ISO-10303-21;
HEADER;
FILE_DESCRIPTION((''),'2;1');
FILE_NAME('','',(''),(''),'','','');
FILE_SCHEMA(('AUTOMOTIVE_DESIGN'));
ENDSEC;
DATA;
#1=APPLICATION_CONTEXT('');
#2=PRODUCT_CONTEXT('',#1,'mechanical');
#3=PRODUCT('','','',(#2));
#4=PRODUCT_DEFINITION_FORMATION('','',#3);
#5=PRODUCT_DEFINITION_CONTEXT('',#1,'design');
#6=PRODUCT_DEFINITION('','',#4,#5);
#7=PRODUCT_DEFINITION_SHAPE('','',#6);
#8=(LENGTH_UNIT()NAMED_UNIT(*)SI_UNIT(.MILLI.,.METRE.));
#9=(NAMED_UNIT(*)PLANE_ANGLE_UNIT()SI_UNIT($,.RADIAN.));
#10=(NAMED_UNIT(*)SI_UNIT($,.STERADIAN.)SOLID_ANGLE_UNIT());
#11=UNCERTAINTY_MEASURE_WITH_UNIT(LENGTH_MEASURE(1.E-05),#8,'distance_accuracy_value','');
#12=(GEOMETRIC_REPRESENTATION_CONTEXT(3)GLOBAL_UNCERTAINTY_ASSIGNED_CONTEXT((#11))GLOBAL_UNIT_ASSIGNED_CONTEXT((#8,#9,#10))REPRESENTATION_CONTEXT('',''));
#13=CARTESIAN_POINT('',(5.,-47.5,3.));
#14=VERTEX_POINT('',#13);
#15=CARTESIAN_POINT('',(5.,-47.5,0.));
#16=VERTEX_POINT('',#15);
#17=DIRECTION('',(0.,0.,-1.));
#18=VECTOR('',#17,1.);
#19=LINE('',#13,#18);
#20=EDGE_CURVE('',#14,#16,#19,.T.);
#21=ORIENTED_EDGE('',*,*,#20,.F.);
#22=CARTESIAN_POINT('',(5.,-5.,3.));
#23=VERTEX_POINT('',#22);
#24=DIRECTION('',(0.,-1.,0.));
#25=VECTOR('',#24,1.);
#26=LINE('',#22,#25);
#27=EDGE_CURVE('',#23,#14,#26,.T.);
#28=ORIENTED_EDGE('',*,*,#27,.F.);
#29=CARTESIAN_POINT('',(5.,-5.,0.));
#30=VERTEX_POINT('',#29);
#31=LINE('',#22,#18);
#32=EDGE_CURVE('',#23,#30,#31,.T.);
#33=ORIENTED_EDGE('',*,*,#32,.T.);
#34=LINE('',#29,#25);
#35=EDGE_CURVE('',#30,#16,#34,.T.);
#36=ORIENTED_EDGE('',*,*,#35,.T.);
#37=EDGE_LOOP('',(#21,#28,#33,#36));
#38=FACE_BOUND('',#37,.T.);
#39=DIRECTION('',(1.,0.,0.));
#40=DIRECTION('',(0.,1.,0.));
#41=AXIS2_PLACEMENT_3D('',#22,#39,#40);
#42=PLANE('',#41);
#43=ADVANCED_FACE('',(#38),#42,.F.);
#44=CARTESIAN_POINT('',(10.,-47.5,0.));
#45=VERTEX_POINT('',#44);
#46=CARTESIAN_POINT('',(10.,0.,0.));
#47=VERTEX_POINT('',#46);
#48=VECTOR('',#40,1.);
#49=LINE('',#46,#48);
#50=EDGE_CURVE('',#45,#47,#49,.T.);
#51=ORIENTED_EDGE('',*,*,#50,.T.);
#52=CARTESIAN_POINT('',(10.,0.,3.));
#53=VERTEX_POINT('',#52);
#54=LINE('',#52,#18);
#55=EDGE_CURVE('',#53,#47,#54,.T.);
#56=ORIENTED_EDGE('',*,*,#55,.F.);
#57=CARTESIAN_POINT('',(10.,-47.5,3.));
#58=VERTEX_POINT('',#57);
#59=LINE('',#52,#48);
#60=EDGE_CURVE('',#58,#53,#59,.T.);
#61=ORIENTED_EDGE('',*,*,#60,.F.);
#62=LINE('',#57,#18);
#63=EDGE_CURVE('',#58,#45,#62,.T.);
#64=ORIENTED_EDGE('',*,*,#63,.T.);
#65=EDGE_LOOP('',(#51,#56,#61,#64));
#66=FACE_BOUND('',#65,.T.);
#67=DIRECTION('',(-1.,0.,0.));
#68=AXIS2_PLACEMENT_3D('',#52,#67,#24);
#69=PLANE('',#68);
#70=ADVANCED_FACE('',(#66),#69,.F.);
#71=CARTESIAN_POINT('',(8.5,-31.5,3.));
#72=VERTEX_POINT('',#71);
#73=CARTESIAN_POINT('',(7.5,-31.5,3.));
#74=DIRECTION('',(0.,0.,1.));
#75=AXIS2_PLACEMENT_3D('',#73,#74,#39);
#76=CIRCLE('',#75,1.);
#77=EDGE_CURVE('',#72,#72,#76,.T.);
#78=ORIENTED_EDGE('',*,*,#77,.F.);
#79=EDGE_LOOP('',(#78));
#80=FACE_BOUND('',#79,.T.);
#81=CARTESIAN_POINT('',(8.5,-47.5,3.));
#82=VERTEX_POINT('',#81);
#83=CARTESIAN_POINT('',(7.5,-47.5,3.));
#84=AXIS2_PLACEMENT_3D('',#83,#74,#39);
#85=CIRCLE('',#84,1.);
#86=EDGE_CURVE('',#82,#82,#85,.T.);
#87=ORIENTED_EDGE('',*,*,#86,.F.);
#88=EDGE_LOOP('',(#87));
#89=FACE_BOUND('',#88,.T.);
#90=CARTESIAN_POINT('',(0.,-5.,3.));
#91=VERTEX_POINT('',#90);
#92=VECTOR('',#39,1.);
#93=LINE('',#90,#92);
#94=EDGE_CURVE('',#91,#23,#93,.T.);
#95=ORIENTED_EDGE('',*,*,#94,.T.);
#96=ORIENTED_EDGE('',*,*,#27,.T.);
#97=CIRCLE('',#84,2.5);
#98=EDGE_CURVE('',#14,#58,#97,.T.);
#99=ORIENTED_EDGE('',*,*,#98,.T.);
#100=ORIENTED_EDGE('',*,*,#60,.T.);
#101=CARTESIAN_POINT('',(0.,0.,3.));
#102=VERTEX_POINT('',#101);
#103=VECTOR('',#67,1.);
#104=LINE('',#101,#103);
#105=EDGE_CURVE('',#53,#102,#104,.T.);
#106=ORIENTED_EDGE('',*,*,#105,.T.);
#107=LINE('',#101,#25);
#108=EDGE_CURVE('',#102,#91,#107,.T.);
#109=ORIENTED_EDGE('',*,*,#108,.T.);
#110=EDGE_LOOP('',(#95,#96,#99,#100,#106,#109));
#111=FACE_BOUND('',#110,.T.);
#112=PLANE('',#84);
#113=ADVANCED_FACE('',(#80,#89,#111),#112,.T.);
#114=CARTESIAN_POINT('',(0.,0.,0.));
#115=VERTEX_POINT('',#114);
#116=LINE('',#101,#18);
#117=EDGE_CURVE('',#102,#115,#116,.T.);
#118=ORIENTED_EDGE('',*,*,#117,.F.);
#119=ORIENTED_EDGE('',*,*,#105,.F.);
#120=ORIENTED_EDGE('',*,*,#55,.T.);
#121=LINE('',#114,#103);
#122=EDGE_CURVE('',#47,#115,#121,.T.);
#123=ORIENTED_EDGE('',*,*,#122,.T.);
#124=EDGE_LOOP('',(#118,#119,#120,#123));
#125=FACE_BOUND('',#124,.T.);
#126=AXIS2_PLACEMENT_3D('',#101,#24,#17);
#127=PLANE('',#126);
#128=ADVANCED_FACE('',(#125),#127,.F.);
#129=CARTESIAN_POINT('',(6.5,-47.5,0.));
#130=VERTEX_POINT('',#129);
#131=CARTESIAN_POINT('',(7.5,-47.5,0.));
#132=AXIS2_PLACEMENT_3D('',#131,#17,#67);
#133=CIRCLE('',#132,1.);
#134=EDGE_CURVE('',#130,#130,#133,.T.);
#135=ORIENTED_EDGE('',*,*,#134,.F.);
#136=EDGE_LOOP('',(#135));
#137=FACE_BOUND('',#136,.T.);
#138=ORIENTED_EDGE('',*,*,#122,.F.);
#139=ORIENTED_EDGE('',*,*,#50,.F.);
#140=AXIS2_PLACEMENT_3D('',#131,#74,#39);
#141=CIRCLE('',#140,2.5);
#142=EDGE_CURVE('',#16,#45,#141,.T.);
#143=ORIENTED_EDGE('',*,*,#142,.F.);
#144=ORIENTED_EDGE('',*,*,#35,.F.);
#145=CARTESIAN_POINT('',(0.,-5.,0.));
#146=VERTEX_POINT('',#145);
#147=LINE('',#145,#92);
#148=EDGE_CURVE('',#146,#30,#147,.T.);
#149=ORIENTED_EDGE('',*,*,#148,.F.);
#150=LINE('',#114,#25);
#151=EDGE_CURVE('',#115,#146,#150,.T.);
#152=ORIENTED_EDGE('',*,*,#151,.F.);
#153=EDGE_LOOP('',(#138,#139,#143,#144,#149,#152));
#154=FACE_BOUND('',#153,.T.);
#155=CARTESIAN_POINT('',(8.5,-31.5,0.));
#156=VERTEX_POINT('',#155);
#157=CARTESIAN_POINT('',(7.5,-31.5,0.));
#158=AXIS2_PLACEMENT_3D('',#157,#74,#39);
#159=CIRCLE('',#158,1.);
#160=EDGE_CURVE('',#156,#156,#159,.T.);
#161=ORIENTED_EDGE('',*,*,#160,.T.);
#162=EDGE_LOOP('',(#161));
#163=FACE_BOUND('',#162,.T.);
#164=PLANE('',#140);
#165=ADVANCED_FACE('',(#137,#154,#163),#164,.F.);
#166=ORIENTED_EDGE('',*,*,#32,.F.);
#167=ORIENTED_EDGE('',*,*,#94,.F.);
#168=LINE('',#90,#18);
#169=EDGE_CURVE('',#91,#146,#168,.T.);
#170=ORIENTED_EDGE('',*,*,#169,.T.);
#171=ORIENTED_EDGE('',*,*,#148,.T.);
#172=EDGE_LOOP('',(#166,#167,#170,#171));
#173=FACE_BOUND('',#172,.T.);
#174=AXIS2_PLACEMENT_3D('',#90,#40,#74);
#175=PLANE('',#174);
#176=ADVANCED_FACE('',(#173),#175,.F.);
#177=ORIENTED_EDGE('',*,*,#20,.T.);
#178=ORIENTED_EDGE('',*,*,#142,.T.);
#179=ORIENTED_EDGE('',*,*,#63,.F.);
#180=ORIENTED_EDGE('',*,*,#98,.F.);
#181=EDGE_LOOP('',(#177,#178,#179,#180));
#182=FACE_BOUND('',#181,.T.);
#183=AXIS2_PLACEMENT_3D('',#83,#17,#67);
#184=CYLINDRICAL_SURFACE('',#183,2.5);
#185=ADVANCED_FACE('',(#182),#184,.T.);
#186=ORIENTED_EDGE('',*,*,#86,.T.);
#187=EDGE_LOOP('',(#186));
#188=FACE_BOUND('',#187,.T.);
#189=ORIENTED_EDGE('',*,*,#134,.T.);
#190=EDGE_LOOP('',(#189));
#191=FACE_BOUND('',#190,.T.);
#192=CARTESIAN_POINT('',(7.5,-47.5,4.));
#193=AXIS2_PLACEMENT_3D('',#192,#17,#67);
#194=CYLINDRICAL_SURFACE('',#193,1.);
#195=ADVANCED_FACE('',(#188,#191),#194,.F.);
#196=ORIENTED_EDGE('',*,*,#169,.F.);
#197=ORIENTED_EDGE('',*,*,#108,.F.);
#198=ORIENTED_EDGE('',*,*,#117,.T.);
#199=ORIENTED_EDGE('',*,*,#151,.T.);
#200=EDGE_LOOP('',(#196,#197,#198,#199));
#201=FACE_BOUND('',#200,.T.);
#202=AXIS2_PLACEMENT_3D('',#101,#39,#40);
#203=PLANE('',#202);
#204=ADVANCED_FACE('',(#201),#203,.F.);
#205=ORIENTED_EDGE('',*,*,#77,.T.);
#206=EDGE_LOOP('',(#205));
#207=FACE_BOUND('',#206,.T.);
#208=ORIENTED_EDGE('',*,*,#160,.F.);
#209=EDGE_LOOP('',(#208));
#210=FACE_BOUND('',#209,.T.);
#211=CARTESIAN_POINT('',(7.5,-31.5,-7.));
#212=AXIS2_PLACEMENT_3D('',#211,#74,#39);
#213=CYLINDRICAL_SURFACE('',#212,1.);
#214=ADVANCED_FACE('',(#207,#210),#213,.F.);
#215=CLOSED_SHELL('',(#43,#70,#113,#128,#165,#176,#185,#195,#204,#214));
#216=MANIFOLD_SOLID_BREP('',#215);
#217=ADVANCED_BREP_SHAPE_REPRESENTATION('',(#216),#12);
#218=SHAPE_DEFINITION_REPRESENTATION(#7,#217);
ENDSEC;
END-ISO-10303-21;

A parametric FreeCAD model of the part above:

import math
import FreeCAD as App
import Part
import Sketcher
Q = App.Units.Quantity

doc = App.newDocument("Part")
body = doc.addObject("PartDesign::Body", "Body")

# Sketch on XY plane
sketch1 = body.newObject("Sketcher::SketchObject", "Sketch")
sketch1.AttachmentSupport = (doc.getObject("XY_Plane"), [""])
sketch1.MapMode = "FlatFace"
sketch1.addGeometry(Part.LineSegment(App.Vector(10, 0, 0), App.Vector(0, 0, 0)), False)
sketch1.addGeometry(Part.LineSegment(App.Vector(0, 0, 0), App.Vector(0, -5, 0)), False)
sketch1.addGeometry(Part.LineSegment(App.Vector(0, -5, 0), App.Vector(5, -5, 0)), False)
sketch1.addGeometry(Part.LineSegment(App.Vector(5, -5, 0), App.Vector(5, -47.5, 0)), False)
sketch1.addGeometry(Part.ArcOfCircle(Part.Circle(App.Vector(7.5, -47.5, 0), App.Vector(0, 0, 1), 2.5), math.radians(180), math.radians(360)), False)
sketch1.addGeometry(Part.LineSegment(App.Vector(10, -47.5, 0), App.Vector(10, 0, 0)), False)
sketch1.addConstraint(Sketcher.Constraint("Coincident", 0, 2, 1, 1))
sketch1.addConstraint(Sketcher.Constraint("Coincident", 1, 2, 2, 1))
sketch1.addConstraint(Sketcher.Constraint("Coincident", 2, 2, 3, 1))
sketch1.addConstraint(Sketcher.Constraint("Tangent", 3, 2, 4, 1))
sketch1.addConstraint(Sketcher.Constraint("Tangent", 4, 2, 5, 1))
sketch1.addConstraint(Sketcher.Constraint("Coincident", 5, 2, 0, 1))
sketch1.addConstraint(Sketcher.Constraint("Horizontal", 0))
sketch1.addConstraint(Sketcher.Constraint("Vertical", 1))
sketch1.addConstraint(Sketcher.Constraint("Horizontal", 2))
sketch1.addConstraint(Sketcher.Constraint("Vertical", 3))
sketch1.addConstraint(Sketcher.Constraint("Vertical", 5))
sketch1.addConstraint(Sketcher.Constraint("Coincident", 0, 2, -1, 1))
sketch1.addConstraint(Sketcher.Constraint("Equal", 2, 1))
sketch1.addConstraint(Sketcher.Constraint("Radius", 4, Q("2.5 mm")))
sketch1.addConstraint(Sketcher.Constraint("DistanceX", 0, 2, 0, 1, Q("10 mm")))
sketch1.addConstraint(Sketcher.Constraint("DistanceY", 3, 2, 3, 1, Q("42.5 mm")))
pad1 = body.newObject("PartDesign::Pad", "Pad")
pad1.Profile = sketch1
pad1.Length = 3

# Sketch on XY plane
sketch2 = body.newObject("Sketcher::SketchObject", "Sketch001")
sketch2.AttachmentSupport = (doc.getObject("XY_Plane"), [""])
sketch2.MapMode = "FlatFace"
sketch2.addGeometry(Part.Circle(App.Vector(7.5, -47.5, 0), App.Vector(0, 0, 1), 1), False)
sketch2.addConstraint(Sketcher.Constraint("Diameter", 0, Q("2 mm")))
sketch2.addConstraint(Sketcher.Constraint("DistanceX", -1, 1, 0, 3, Q("7.5 mm")))
sketch2.addConstraint(Sketcher.Constraint("DistanceY", 0, 3, -1, 1, Q("47.5 mm")))
pocket1 = body.newObject("PartDesign::Pocket", "Pocket")
pocket1.Profile = sketch2
pocket1.Length = 4
pocket1.Reversed = True

# Sketch on XY plane
sketch3 = body.newObject("Sketcher::SketchObject", "Sketch002")
sketch3.AttachmentSupport = (doc.getObject("XY_Plane"), [""])
sketch3.MapMode = "FlatFace"
sketch3.AttachmentOffset = App.Placement(App.Vector(0, 0, 3), App.Rotation())
sketch3.addGeometry(Part.Circle(App.Vector(7.5, -31.5, 0), App.Vector(0, 0, 1), 1), False)
sketch3.addConstraint(Sketcher.Constraint("Diameter", 0, Q("2 mm")))
sketch3.addConstraint(Sketcher.Constraint("DistanceX", -1, 1, 0, 3, Q("7.5 mm")))
sketch3.addConstraint(Sketcher.Constraint("DistanceY", 0, 3, -1, 1, Q("31.5 mm")))
pocket2 = body.newObject("PartDesign::Pocket", "Pocket001")
pocket2.Profile = sketch3
pocket2.Length = 10

doc.recompute()
